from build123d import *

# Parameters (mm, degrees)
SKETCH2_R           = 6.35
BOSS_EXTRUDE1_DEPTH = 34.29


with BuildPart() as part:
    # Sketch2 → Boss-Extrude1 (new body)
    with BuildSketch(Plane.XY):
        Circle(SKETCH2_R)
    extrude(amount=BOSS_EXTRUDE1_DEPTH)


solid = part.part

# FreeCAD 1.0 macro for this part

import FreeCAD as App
import Part
import Sketcher

V = App.Vector
Q = App.Units.Quantity

doc = App.newDocument("Part")
body = doc.addObject("PartDesign::Body", "Body")

# Sketch on XY plane
sketch1 = doc.addObject("Sketcher::SketchObject", "Sketch")
body.addObject(sketch1)
sketch1.AttachmentSupport = (doc.XY_Plane, [""])
sketch1.MapMode = "FlatFace"
sketch1.addGeometry(Part.Circle(V(0, 0, 0), V(0, 0, 1), 6), False)
sketch1.addConstraint(Sketcher.Constraint("Coincident", 0, 3, -1, 1))
sketch1.addConstraint(Sketcher.Constraint("Diameter", 0, Q("0.5 in")))
pad1 = doc.addObject("PartDesign::Pad", "Pad")
body.addObject(pad1)
pad1.Profile = sketch1
pad1.Length = Q("1.35 in")

doc.recompute()
